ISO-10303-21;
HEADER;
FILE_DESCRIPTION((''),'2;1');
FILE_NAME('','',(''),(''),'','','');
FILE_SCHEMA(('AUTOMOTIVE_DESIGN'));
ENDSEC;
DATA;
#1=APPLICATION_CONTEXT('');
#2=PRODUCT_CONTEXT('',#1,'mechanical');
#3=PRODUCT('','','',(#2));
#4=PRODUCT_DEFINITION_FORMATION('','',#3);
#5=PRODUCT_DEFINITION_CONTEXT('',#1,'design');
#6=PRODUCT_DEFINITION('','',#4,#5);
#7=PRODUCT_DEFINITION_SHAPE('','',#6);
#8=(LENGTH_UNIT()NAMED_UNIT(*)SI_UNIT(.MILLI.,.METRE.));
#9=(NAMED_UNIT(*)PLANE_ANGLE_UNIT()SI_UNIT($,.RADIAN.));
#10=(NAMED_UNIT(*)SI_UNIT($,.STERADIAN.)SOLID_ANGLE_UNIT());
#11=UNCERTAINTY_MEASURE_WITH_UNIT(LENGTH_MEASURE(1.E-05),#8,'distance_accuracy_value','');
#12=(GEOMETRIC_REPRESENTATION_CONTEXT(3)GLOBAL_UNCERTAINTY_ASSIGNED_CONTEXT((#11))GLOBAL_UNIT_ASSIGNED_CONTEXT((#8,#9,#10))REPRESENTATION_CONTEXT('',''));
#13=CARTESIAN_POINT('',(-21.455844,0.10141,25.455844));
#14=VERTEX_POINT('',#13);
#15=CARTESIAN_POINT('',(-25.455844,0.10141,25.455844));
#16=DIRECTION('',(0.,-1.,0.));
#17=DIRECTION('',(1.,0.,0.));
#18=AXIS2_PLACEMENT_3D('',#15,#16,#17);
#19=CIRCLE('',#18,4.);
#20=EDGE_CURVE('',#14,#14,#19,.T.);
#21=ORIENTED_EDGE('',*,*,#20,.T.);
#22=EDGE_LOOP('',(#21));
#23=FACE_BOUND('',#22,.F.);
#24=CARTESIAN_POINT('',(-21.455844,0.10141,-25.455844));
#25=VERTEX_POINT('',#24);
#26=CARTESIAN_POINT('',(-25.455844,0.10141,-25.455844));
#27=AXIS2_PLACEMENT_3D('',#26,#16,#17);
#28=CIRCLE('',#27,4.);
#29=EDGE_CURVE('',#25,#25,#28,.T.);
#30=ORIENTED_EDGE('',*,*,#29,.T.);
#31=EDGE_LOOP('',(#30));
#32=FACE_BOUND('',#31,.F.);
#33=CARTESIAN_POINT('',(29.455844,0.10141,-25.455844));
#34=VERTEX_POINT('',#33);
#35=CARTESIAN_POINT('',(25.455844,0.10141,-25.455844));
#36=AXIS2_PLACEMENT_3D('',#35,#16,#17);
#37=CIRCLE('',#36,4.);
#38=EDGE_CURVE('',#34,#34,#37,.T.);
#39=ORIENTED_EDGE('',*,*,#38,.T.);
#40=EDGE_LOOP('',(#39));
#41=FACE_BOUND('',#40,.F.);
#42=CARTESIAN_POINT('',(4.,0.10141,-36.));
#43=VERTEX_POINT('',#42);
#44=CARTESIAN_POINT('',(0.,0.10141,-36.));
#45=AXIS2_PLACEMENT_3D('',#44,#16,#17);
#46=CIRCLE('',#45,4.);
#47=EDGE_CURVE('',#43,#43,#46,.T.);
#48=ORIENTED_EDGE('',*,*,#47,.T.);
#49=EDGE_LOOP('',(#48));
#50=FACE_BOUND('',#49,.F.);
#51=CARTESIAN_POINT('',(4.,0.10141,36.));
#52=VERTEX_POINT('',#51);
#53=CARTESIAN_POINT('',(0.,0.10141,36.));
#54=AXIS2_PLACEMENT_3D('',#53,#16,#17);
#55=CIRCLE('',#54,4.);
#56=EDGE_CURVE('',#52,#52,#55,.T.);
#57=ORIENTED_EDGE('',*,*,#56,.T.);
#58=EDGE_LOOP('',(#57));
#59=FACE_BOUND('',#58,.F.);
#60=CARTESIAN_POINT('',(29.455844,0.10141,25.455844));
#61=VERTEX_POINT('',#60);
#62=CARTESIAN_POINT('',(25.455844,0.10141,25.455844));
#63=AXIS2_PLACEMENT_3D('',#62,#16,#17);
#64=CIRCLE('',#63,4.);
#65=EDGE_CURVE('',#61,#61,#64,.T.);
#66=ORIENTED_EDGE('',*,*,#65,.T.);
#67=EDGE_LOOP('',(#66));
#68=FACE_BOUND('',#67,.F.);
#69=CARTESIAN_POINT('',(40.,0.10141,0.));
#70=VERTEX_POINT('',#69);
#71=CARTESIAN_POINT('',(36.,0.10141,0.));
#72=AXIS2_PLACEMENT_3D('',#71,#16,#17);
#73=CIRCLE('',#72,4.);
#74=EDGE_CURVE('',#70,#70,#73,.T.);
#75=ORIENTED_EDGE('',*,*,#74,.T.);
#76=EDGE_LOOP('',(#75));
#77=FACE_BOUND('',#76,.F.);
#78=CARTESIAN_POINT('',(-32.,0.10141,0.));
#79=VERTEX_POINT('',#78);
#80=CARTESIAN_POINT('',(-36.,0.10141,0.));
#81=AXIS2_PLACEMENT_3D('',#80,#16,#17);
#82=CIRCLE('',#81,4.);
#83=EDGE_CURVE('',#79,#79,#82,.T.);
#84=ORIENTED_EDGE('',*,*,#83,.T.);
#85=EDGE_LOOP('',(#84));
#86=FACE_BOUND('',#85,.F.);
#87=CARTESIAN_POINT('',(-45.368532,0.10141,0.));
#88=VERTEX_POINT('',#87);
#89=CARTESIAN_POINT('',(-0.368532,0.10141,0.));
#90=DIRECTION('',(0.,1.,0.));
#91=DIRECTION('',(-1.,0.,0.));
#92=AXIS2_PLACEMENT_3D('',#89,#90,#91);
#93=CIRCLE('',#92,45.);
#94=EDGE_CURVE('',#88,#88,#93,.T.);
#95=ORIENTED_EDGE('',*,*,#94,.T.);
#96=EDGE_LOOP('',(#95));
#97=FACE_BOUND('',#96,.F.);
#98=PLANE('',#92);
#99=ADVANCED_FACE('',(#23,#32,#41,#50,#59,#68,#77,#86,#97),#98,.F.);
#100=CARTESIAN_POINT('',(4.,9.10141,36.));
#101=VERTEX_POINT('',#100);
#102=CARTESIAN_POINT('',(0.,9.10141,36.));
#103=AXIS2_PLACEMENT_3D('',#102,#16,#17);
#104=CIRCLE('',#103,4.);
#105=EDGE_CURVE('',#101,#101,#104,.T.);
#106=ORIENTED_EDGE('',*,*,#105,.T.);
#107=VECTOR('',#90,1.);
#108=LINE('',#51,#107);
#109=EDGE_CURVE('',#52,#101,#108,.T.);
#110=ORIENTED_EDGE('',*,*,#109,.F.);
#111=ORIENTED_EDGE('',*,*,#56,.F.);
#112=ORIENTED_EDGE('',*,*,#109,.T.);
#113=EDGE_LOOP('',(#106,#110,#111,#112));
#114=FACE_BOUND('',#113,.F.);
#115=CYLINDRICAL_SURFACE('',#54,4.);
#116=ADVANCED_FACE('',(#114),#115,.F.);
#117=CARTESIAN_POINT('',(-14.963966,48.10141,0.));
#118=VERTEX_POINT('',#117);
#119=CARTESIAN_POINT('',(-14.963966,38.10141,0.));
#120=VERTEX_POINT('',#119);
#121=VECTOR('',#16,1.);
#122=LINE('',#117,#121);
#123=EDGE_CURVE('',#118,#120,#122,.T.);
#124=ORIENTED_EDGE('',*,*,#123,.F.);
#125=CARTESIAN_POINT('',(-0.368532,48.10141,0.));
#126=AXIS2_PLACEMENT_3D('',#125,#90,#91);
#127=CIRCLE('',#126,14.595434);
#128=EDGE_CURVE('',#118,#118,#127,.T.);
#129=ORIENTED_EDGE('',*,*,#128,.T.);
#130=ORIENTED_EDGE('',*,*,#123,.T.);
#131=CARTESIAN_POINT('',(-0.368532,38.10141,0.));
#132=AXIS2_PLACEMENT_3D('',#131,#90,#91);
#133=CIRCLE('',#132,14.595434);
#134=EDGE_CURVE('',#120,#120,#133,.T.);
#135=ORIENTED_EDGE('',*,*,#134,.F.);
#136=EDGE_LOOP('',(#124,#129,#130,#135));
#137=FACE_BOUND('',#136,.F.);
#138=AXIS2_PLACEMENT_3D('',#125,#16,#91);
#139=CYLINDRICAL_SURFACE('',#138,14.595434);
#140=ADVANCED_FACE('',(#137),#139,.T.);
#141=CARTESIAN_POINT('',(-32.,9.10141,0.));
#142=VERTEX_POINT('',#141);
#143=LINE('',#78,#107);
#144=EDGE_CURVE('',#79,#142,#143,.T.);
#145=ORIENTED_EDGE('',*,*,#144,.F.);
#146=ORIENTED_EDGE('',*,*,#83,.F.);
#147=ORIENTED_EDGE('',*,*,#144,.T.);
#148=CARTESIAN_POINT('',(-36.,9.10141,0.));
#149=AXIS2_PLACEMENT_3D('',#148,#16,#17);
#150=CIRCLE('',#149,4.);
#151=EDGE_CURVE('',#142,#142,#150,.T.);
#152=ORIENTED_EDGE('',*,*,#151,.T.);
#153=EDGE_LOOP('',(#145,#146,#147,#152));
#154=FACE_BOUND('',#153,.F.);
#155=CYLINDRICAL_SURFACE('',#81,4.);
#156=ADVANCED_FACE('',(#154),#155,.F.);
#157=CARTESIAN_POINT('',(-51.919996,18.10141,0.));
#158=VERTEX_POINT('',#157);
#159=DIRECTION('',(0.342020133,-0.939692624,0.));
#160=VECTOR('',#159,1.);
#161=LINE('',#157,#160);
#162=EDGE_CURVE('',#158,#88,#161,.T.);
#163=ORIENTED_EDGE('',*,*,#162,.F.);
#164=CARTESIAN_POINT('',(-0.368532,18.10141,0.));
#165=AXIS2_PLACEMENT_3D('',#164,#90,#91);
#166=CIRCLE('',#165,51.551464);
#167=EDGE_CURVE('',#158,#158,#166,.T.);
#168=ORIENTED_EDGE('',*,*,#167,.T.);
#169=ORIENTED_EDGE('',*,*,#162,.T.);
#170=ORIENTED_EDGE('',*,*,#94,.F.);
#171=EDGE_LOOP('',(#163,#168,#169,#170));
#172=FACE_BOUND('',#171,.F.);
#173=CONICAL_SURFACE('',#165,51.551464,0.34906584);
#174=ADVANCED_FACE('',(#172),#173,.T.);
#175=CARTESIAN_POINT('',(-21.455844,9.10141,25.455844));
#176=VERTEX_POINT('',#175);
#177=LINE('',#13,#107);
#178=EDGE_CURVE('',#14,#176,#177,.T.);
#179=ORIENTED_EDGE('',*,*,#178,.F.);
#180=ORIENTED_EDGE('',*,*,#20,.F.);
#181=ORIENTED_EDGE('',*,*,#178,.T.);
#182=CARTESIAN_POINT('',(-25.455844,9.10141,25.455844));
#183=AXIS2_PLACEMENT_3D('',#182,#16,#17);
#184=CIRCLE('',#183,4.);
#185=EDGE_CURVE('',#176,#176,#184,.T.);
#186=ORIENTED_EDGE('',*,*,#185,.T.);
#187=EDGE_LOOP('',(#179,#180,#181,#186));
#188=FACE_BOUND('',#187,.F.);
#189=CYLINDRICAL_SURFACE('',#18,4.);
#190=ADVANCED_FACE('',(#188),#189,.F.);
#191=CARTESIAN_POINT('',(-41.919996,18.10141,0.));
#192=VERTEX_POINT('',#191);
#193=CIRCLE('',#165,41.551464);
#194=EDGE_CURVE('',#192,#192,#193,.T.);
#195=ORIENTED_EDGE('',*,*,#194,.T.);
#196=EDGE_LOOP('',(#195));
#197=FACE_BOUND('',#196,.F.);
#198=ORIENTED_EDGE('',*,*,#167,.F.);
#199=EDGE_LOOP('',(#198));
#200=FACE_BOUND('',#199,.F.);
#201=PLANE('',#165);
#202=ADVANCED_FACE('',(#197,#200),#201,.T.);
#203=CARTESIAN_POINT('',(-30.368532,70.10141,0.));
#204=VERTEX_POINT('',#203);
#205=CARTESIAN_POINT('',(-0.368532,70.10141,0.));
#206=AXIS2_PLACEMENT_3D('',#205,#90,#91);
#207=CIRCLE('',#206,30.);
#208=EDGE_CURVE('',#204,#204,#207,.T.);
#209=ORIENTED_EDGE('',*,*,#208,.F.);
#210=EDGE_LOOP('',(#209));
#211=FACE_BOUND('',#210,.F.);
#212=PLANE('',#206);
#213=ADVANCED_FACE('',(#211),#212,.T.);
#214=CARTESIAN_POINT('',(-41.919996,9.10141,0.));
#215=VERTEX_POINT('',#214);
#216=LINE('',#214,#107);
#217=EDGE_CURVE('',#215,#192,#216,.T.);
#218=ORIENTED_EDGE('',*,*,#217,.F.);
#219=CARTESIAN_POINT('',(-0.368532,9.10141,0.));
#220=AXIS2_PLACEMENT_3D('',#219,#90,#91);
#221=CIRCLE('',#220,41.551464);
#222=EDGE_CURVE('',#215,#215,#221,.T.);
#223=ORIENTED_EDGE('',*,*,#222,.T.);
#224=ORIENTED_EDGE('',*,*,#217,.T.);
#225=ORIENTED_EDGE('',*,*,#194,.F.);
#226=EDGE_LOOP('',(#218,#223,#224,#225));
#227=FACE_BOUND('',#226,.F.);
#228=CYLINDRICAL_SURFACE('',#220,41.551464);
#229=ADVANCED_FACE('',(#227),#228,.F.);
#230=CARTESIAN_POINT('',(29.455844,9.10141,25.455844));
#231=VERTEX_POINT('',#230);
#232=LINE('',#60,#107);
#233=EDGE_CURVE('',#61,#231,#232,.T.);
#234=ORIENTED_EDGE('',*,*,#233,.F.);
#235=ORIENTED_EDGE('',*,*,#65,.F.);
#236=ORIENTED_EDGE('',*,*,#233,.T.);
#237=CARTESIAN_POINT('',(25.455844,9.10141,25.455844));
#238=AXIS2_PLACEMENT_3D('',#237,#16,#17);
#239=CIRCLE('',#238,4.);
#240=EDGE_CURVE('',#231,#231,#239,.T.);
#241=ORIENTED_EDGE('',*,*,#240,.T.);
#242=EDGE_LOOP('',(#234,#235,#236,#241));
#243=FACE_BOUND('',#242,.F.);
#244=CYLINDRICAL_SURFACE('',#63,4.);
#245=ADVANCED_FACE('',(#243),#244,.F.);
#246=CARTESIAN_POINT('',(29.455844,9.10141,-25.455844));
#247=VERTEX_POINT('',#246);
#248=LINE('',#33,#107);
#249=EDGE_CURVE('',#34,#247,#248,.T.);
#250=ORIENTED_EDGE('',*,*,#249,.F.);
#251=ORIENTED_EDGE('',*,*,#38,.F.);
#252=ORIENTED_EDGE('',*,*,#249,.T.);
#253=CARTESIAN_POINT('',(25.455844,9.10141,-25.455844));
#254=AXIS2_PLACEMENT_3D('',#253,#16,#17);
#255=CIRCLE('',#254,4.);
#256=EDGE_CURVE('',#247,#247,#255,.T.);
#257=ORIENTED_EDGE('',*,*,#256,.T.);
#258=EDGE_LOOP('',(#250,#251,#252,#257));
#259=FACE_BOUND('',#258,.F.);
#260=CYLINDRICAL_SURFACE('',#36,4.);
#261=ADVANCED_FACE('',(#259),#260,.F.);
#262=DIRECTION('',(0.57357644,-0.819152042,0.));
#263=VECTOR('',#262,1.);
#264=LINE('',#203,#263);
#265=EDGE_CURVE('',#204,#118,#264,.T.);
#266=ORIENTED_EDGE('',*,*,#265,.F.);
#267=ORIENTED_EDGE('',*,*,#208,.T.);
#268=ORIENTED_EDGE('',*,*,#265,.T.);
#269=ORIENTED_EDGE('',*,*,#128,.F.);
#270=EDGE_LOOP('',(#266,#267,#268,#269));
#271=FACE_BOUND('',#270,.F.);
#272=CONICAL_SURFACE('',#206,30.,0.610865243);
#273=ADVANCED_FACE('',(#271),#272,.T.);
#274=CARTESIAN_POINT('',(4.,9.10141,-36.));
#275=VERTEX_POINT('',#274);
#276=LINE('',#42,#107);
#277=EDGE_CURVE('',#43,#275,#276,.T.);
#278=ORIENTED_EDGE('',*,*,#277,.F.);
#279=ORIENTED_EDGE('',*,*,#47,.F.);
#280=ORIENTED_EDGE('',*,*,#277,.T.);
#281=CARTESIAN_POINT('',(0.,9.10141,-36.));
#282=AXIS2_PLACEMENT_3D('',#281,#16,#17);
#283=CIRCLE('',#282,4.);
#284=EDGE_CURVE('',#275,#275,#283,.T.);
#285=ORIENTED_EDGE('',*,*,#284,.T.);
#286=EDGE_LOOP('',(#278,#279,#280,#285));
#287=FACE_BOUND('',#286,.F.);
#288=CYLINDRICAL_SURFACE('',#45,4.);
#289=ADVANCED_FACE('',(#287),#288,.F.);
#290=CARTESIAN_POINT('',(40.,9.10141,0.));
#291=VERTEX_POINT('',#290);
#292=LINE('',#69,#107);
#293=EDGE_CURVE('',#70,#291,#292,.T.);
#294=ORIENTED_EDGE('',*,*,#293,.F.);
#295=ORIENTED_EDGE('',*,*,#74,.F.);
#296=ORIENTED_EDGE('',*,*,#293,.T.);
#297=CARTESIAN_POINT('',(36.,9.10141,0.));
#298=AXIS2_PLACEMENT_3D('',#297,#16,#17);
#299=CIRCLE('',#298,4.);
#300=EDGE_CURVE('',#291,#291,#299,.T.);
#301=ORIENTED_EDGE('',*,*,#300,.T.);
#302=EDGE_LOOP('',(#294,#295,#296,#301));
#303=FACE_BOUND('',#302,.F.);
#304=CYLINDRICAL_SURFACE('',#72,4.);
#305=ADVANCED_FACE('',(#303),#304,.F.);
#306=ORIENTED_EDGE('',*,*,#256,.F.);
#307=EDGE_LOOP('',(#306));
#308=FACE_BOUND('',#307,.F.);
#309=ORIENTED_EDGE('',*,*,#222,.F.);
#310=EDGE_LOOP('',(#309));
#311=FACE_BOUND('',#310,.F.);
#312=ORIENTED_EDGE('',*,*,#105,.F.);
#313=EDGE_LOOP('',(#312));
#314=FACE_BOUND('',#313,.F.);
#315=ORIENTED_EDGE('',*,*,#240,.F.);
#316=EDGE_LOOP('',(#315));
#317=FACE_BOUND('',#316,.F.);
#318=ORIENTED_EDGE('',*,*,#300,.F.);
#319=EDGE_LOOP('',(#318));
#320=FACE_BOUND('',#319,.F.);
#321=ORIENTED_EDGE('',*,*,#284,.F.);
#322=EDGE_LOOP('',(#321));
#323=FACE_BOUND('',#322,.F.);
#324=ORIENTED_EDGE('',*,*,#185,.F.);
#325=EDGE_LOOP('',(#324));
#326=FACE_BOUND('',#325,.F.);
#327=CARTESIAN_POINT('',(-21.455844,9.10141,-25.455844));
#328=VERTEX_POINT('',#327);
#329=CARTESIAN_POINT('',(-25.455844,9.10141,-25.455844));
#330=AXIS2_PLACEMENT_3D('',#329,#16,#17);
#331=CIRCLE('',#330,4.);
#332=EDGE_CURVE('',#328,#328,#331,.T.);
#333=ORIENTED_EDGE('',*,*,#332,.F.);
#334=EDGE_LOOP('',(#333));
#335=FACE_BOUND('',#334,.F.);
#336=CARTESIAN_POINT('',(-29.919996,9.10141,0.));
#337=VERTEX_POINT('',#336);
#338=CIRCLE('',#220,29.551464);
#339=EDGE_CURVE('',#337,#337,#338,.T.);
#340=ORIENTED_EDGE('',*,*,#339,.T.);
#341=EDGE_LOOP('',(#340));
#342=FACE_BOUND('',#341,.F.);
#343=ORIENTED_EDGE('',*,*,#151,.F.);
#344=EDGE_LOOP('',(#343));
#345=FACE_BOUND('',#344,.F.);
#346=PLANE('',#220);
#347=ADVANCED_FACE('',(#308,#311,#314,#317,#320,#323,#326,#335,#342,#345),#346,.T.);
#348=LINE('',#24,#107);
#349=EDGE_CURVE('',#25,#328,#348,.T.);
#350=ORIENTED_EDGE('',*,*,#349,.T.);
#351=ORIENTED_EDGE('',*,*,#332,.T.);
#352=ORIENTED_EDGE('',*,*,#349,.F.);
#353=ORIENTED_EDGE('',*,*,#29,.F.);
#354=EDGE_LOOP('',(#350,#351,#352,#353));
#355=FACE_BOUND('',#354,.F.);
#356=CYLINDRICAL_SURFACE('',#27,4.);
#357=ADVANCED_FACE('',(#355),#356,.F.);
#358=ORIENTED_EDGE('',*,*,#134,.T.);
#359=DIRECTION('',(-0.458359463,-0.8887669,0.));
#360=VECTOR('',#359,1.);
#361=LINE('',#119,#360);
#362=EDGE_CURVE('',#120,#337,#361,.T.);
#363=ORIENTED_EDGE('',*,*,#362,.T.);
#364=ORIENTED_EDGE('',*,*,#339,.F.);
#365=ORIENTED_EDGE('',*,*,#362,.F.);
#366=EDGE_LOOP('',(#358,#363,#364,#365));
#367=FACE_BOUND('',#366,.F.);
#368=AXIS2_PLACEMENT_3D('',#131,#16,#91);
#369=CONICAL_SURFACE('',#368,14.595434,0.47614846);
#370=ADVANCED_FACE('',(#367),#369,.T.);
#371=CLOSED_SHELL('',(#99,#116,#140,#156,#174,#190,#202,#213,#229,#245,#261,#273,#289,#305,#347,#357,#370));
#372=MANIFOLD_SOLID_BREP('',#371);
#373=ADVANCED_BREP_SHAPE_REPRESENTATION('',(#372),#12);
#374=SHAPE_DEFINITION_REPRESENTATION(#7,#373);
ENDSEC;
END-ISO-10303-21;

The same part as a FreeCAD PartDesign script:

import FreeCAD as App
import Part
import Sketcher

V = App.Vector
Q = App.Units.Quantity


def add_polygon(sketch, points):
    """Adds a closed chain of lines whose ends are joined by coincident constraints."""
    first, n = sketch.GeometryCount, len(points)
    for a, b in zip(points, points[1:] + points[:1]):
        sketch.addGeometry(Part.LineSegment(App.Vector(*a, 0), App.Vector(*b, 0)), False)
    for i in range(n):
        sketch.addConstraint(Sketcher.Constraint("Coincident", first + i, 2, first + (i + 1) % n, 1))

doc = App.newDocument("Part")
params = doc.addObject("Spreadsheet::Sheet", "Params")
for row, (alias, value) in enumerate([
    ("sketch1_width", "45 mm"),
    ("sketch1_width2", "30 mm"),
    ("sketch1_width3", "12 mm"),
    ("sketch1_width4", "10 mm"),
    ("sketch1_height", "70 mm"),
    ("revolution_angle", "360 deg"),
    ("sketch2_diameter", "8 mm"),
], start=1):
    params.set(f"A{row}", alias)
    params.set(f"B{row}", "=" + value)
    params.setAlias(f"B{row}", alias)

body = doc.addObject("PartDesign::Body", "Body")

# Sketch on XY plane
sketch1 = doc.addObject("Sketcher::SketchObject", "Sketch")
body.addObject(sketch1)
sketch1.AttachmentSupport = (doc.XY_Plane, [""])
sketch1.MapMode = "FlatFace"
add_polygon(sketch1, [(-45, 0), (0, 0), (0, 70), (-30, 70), (-15, 48), (-15, 38), (-30, 9), (-42, 9), (-42, 18), (-52, 18)])  # lines 0-9
sketch1.addGeometry(Part.LineSegment(V(0, 0, 0), V(0, 70, 0)), True)  # axis
sketch1.addConstraint([
    Sketcher.Constraint("Horizontal", 0),
    Sketcher.Constraint("Vertical", 1),
    Sketcher.Constraint("Horizontal", 2),
    Sketcher.Constraint("Vertical", 4),
    Sketcher.Constraint("Horizontal", 6),
    Sketcher.Constraint("Vertical", 7),
    Sketcher.Constraint("Horizontal", 8),
    Sketcher.Constraint("Vertical", 10),
    Sketcher.Constraint("Coincident", 10, 1, 0, 2),
    Sketcher.Constraint("Horizontal", 2, 2, 10, 2),
    Sketcher.Constraint("Equal", 8, 4),
    Sketcher.Constraint("DistanceX", 0, 1, 0, 2, Q("45 mm")),
    Sketcher.Constraint("DistanceX", 2, 2, 2, 1, Q("30 mm")),
    Sketcher.Constraint("DistanceX", 6, 2, 6, 1, Q("12 mm")),
    Sketcher.Constraint("DistanceX", 8, 2, 8, 1, Q("10 mm")),
    Sketcher.Constraint("DistanceY", 1, 1, 1, 2, Q("70 mm")),
    Sketcher.Constraint("DistanceY", 7, 1, 7, 2, Q("9 mm")),
    Sketcher.Constraint("Angle", 3, Q("-55 deg")),
    Sketcher.Constraint("Angle", 9, Q("-70.000001 deg")),
    Sketcher.Constraint("DistanceY", 3, 2, 1, 2, Q("22 mm")),
    Sketcher.Constraint("DistanceY", 0, 2, 5, 2, Q("9 mm")),
    Sketcher.Constraint("DistanceY", -1, 1, 0, 2, Q("0.10141 mm")),
    Sketcher.Constraint("DistanceX", 2, 2, -1, 1, Q("30.368532 mm")),
])
sketch1.setExpression("Constraints[21]", "Params.sketch1_width")
sketch1.setExpression("Constraints[22]", "Params.sketch1_width2")
sketch1.setExpression("Constraints[23]", "Params.sketch1_width3")
sketch1.setExpression("Constraints[24]", "Params.sketch1_width4")
sketch1.setExpression("Constraints[25]", "Params.sketch1_height")
revolution = doc.addObject("PartDesign::Revolution", "Revolution")
body.addObject(revolution)
revolution.Profile = sketch1
revolution.ReferenceAxis = (sketch1, ["Axis0"])
revolution.setExpression("Angle", "Params.revolution_angle")

# Sketch on XZ plane
sketch2 = doc.addObject("Sketcher::SketchObject", "Sketch001")
body.addObject(sketch2)
sketch2.AttachmentSupport = (doc.XZ_Plane, [""])
sketch2.MapMode = "FlatFace"
sketch2.AttachmentOffset = App.Placement(V(0, 0, -0.10141), App.Rotation())
sketch2.addGeometry([
    Part.Circle(V(-36, 0, 0), V(0, 0, 1), 4),  # 0
    Part.Circle(V(-25.5, -25.5, 0), V(0, 0, 1), 4),  # 1
    Part.Circle(V(0, -36, 0), V(0, 0, 1), 4),  # 2
    Part.Circle(V(25.5, -25.5, 0), V(0, 0, 1), 4),  # 3
    Part.Circle(V(36, 0, 0), V(0, 0, 1), 4),  # 4
    Part.Circle(V(25.5, 25.5, 0), V(0, 0, 1), 4),  # 5
    Part.Circle(V(0, 36, 0), V(0, 0, 1), 4),  # 6
    Part.Circle(V(-25.5, 25.5, 0), V(0, 0, 1), 4),  # 7
], False)
sketch2.addConstraint([
    Sketcher.Constraint("Equal", 0, 1),
    Sketcher.Constraint("Equal", 1, 2),
    Sketcher.Constraint("Equal", 2, 3),
    Sketcher.Constraint("Equal", 3, 4),
    Sketcher.Constraint("Equal", 4, 5),
    Sketcher.Constraint("Equal", 5, 6),
    Sketcher.Constraint("Equal", 6, 7),
    Sketcher.Constraint("Symmetric", 0, 3, 4, 3, -1, 1),
    Sketcher.Constraint("Symmetric", 1, 3, 5, 3, -1, 1),
    Sketcher.Constraint("Symmetric", 2, 3, 6, 3, -1, 1),
    Sketcher.Constraint("Symmetric", 3, 3, 7, 3, -1, 1),
    Sketcher.Constraint("Symmetric", 1, 3, 3, 3, -2),
    Sketcher.Constraint("PointOnObject", 0, 3, -1),
    Sketcher.Constraint("PointOnObject", 2, 3, -2),
    Sketcher.Constraint("Diameter", 0, Q("8 mm")),
    Sketcher.Constraint("DistanceX", 0, 3, -1, 1, Q("36 mm")),
    Sketcher.Constraint("DistanceY", 2, 3, -1, 1, Q("36 mm")),
    Sketcher.Constraint("DistanceX", 1, 3, -1, 1, Q("25.455844 mm")),
    Sketcher.Constraint("DistanceY", 1, 3, -1, 1, Q("25.455844 mm")),
])
sketch2.setExpression("Constraints[14]", "Params.sketch2_diameter")
pocket1 = doc.addObject("PartDesign::Pocket", "Pocket")
body.addObject(pocket1)
pocket1.Profile = sketch2
pocket1.Type = "ThroughAll"

doc.recompute()
